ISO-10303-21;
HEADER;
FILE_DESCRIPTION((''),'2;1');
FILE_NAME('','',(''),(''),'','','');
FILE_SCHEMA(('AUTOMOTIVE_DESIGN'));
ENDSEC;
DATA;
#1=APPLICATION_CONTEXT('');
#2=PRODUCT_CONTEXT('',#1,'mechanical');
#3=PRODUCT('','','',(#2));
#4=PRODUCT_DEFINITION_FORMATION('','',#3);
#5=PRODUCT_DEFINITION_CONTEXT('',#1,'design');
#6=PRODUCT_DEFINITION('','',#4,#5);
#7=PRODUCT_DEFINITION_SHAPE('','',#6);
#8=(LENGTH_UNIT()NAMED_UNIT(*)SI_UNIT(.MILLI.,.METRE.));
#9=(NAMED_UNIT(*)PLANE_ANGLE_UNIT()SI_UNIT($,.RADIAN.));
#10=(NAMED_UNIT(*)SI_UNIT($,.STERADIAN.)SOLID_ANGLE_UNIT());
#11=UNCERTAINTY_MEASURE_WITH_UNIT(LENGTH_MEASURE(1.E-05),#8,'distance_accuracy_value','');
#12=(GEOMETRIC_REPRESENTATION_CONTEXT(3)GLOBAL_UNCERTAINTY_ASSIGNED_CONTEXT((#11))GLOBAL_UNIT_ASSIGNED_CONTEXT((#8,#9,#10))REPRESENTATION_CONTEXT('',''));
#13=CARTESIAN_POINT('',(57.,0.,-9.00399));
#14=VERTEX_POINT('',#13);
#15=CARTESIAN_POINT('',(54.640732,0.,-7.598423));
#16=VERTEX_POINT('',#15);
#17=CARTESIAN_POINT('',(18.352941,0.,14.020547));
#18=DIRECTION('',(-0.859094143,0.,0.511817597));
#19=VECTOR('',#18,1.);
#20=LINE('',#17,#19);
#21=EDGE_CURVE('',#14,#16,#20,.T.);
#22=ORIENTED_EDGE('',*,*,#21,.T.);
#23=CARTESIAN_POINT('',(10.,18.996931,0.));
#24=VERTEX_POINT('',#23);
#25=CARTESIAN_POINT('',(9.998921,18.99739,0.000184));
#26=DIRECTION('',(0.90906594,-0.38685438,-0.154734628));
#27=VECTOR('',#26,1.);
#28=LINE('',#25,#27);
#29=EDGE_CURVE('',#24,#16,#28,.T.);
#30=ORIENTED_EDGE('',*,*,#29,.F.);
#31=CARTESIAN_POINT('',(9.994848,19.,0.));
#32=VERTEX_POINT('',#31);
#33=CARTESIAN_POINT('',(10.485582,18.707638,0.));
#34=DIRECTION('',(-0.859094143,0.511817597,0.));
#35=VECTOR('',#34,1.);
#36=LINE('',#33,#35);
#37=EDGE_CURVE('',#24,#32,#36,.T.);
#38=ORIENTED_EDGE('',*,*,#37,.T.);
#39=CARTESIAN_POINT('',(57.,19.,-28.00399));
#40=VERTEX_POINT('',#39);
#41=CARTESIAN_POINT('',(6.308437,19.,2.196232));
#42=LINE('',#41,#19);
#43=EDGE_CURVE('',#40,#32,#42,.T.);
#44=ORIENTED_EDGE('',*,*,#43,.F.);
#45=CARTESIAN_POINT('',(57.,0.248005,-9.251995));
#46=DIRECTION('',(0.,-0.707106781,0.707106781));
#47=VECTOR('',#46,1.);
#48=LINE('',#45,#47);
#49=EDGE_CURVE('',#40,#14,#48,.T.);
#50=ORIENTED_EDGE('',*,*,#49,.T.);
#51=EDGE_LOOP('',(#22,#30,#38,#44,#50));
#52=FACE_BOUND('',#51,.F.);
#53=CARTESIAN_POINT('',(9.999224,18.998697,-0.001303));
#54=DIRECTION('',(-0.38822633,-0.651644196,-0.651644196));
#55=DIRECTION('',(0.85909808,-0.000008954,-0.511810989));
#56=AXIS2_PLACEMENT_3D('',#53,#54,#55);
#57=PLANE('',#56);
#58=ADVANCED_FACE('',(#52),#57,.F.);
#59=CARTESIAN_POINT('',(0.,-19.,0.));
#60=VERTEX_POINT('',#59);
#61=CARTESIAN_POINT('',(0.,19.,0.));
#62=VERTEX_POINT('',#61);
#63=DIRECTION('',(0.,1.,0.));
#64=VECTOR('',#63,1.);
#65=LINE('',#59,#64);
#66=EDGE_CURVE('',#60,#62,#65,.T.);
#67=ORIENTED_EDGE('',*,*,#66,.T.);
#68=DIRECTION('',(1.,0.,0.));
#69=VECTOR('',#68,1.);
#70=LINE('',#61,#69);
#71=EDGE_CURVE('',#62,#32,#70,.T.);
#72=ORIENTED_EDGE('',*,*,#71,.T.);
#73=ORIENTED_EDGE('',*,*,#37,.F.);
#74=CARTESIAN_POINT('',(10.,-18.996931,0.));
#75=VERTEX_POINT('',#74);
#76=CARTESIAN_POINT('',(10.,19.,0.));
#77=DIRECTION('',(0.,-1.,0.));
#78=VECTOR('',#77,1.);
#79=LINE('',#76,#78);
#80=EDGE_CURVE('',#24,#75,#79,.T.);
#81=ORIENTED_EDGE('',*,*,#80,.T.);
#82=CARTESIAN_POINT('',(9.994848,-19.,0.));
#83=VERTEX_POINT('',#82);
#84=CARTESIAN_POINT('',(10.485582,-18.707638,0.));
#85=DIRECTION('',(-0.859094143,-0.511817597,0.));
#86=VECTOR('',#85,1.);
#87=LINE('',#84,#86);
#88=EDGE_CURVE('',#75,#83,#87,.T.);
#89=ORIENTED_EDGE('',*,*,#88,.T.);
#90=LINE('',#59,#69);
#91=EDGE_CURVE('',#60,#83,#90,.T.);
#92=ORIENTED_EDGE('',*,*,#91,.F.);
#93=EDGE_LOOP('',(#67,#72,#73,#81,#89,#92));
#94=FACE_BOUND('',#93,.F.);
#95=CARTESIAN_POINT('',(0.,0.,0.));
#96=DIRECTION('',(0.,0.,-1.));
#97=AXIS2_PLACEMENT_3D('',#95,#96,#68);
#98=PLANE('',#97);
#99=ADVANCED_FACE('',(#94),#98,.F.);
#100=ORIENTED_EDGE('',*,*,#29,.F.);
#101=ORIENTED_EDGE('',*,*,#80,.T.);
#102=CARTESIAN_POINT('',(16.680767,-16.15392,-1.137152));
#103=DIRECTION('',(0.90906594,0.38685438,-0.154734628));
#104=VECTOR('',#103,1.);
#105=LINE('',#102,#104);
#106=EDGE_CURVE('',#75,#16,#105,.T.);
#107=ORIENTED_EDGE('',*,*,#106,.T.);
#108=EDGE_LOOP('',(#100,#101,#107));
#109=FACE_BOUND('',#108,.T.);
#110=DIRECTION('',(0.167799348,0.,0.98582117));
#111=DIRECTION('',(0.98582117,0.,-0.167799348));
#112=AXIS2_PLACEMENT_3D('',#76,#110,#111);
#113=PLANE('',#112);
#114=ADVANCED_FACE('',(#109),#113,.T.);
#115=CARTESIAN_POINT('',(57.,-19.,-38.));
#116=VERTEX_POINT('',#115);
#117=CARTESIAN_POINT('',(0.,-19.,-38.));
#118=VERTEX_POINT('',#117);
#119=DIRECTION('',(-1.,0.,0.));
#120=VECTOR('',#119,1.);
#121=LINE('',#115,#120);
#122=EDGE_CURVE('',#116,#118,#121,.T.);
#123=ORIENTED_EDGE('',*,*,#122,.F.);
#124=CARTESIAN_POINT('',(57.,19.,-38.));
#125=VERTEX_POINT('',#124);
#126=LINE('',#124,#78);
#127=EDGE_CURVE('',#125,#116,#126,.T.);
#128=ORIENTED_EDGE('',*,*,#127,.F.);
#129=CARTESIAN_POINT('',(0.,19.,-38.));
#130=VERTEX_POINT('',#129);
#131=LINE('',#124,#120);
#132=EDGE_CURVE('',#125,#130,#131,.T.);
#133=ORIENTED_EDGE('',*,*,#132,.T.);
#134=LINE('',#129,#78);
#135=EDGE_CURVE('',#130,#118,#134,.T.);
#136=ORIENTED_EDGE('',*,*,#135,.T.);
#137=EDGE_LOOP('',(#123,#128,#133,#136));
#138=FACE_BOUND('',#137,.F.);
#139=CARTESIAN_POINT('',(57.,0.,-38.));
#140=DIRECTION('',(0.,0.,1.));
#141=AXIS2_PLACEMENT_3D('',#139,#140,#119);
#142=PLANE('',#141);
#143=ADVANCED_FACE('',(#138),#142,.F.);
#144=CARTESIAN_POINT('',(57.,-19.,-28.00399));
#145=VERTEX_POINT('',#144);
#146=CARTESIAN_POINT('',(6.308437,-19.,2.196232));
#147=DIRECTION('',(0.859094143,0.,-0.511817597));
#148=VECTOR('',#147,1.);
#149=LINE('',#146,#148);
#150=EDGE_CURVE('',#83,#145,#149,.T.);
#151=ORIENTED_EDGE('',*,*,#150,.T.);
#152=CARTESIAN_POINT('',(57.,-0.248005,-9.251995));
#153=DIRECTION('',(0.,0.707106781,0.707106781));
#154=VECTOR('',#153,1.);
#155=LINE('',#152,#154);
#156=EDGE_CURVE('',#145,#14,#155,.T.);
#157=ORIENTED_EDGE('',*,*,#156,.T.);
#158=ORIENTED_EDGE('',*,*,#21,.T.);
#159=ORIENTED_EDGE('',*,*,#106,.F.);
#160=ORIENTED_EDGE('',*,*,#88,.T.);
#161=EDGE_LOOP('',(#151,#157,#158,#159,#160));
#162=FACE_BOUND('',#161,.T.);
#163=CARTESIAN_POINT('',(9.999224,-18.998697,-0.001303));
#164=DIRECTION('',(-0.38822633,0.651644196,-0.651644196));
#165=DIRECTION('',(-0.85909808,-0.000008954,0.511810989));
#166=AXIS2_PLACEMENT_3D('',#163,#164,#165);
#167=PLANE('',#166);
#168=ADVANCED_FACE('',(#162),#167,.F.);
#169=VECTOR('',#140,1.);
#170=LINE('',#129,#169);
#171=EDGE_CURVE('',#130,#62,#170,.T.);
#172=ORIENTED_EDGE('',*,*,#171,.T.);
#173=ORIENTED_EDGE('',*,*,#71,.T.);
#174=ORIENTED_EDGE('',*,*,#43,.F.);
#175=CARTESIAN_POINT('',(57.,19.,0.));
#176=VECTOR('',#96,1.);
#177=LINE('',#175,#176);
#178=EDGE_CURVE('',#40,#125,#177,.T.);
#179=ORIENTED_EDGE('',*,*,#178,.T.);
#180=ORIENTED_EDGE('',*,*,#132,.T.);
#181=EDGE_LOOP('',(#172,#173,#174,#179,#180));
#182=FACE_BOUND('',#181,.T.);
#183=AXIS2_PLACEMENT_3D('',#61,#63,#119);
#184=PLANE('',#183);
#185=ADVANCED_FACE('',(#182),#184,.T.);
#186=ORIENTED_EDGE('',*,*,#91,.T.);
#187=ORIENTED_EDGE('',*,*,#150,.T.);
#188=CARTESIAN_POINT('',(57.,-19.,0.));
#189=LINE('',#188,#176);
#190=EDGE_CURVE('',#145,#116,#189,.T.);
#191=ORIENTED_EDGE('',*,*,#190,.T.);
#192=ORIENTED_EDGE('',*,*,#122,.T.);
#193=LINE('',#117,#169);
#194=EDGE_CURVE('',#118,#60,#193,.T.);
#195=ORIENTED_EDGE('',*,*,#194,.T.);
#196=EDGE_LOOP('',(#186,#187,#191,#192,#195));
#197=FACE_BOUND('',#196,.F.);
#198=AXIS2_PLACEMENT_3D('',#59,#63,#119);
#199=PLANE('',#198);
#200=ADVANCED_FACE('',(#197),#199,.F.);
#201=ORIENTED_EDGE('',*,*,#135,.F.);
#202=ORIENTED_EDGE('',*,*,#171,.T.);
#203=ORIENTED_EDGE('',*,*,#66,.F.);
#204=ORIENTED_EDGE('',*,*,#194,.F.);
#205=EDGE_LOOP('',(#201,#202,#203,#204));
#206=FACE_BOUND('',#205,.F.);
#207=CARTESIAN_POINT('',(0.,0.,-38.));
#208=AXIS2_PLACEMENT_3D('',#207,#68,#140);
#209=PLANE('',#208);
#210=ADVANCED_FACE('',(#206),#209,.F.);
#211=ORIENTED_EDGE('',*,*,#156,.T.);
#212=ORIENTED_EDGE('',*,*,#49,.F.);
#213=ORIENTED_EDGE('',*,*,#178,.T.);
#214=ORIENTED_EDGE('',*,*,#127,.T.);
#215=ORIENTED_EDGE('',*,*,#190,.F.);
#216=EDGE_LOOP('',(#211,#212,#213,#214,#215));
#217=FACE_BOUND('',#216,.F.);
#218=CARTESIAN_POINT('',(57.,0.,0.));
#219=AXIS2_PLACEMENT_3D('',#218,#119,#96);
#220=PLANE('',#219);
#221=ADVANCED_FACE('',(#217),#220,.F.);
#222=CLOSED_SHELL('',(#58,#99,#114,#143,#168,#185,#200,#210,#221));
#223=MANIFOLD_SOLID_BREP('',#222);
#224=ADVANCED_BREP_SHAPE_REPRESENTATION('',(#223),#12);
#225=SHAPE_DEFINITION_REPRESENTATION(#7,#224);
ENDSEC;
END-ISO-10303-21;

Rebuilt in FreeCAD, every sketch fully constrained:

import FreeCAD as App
import Part
import Sketcher

V = App.Vector
Q = App.Units.Quantity

doc = App.newDocument("Part")
body = doc.addObject("PartDesign::Body", "Body")

# Sketch on XZ plane
sketch1 = doc.addObject("Sketcher::SketchObject", "Sketch")
body.addObject(sketch1)
sketch1.AttachmentSupport = (doc.XZ_Plane, [""])
sketch1.MapMode = "FlatFace"
sketch1.addGeometry([
    Part.LineSegment(V(0, -38, 0), V(0, 0, 0)),
    Part.LineSegment(V(0, 0, 0), V(57, 0, 0)),
    Part.LineSegment(V(57, 0, 0), V(57, -38, 0)),
    Part.LineSegment(V(57, -38, 0), V(0, -38, 0)),
], False)
sketch1.addConstraint([
    Sketcher.Constraint("Coincident", 0, 2, 1, 1),
    Sketcher.Constraint("Coincident", 1, 2, 2, 1),
    Sketcher.Constraint("Coincident", 2, 2, 3, 1),
    Sketcher.Constraint("Coincident", 3, 2, 0, 1),
    Sketcher.Constraint("Vertical", 0),
    Sketcher.Constraint("Horizontal", 1),
    Sketcher.Constraint("Vertical", 2),
    Sketcher.Constraint("Horizontal", 3),
    Sketcher.Constraint("Coincident", 0, 2, -1, 1),
    Sketcher.Constraint("DistanceX", 1, 1, 1, 2, Q("57 mm")),
    Sketcher.Constraint("DistanceY", 0, 1, 0, 2, Q("38 mm")),
])
pad1 = doc.addObject("PartDesign::Pad", "Pad")
body.addObject(pad1)
pad1.Profile = sketch1
pad1.Length = 38
pad1.Midplane = True

# Sketch on XZ plane
sketch2 = doc.addObject("Sketcher::SketchObject", "Sketch001")
body.addObject(sketch2)
sketch2.AttachmentSupport = (doc.XZ_Plane, [""])
sketch2.MapMode = "FlatFace"
sketch2.AttachmentOffset = App.Placement(V(0, 0, -19), App.Rotation())
sketch2.addGeometry([
    Part.LineSegment(V(57, -8, 0), V(10, 0, 0)),
    Part.LineSegment(V(10, 0, 0), V(57, 0, 0)),
    Part.LineSegment(V(57, 0, 0), V(57, -8, 0)),
], False)
sketch2.addConstraint([
    Sketcher.Constraint("Coincident", 0, 2, 1, 1),
    Sketcher.Constraint("Coincident", 1, 2, 2, 1),
    Sketcher.Constraint("Coincident", 2, 2, 0, 1),
    Sketcher.Constraint("Horizontal", 1),
    Sketcher.Constraint("Vertical", 2),
    Sketcher.Constraint("PointOnObject", 0, 2, -1),
    Sketcher.Constraint("DistanceX", -1, 1, 0, 2, Q("10 mm")),
    Sketcher.Constraint("DistanceX", 1, 1, 1, 2, Q("47 mm")),
    Sketcher.Constraint("DistanceY", 2, 2, 2, 1, Q("8 mm")),
])
pocket1 = doc.addObject("PartDesign::Pocket", "Pocket")
body.addObject(pocket1)
pocket1.Profile = sketch2
pocket1.Length = 40
pocket1.Reversed = True

# Sketch on an angled plane
sketch3 = doc.addObject("Sketcher::SketchObject", "Sketch002")
body.addObject(sketch3)
sketch3.Placement = App.Placement(V(10, 19, 0), App.Rotation(V(0.85909808, -0.000008954, -0.511810989), V(0.333512826, -0.75852478, 0.559829754), V(-0.38822633, -0.651644196, -0.651644196), "ZXY"))
sketch3.addGeometry([
    Part.LineSegment(V(-15.1543, 28.8166, 0), V(-15.1543, -12.3218, 0)),
    Part.LineSegment(V(-15.1543, -12.3218, 0), V(93.717, -12.3218, 0)),
    Part.LineSegment(V(93.717, -12.3218, 0), V(93.717, 28.8166, 0)),
    Part.LineSegment(V(93.717, 28.8166, 0), V(-15.1543, 28.8166, 0)),
], False)
sketch3.addConstraint([
    Sketcher.Constraint("Coincident", 0, 2, 1, 1),
    Sketcher.Constraint("Coincident", 1, 2, 2, 1),
    Sketcher.Constraint("Coincident", 2, 2, 3, 1),
    Sketcher.Constraint("Coincident", 3, 2, 0, 1),
    Sketcher.Constraint("Vertical", 0),
    Sketcher.Constraint("Horizontal", 1),
    Sketcher.Constraint("Vertical", 2),
    Sketcher.Constraint("Horizontal", 3),
    Sketcher.Constraint("DistanceX", 1, 1, 1, 2, Q("108.8713 mm")),
    Sketcher.Constraint("DistanceY", 0, 2, 0, 1, Q("41.1384 mm")),
    Sketcher.Constraint("DistanceX", -1, 1, 1, 2, Q("93.717 mm")),
    Sketcher.Constraint("DistanceY", 0, 2, -1, 1, Q("12.3218 mm")),
])
pocket2 = doc.addObject("PartDesign::Pocket", "Pocket001")
body.addObject(pocket2)
pocket2.Profile = sketch3
pocket2.Length = 40
doc.recompute()

mirrored = doc.addObject("PartDesign::Mirrored", "Mirrored")
body.addObject(mirrored)
mirrored.Originals = [pocket2]
mirrored.MirrorPlane = (doc.XZ_Plane, [""])
body.Tip = mirrored

doc.recompute()
